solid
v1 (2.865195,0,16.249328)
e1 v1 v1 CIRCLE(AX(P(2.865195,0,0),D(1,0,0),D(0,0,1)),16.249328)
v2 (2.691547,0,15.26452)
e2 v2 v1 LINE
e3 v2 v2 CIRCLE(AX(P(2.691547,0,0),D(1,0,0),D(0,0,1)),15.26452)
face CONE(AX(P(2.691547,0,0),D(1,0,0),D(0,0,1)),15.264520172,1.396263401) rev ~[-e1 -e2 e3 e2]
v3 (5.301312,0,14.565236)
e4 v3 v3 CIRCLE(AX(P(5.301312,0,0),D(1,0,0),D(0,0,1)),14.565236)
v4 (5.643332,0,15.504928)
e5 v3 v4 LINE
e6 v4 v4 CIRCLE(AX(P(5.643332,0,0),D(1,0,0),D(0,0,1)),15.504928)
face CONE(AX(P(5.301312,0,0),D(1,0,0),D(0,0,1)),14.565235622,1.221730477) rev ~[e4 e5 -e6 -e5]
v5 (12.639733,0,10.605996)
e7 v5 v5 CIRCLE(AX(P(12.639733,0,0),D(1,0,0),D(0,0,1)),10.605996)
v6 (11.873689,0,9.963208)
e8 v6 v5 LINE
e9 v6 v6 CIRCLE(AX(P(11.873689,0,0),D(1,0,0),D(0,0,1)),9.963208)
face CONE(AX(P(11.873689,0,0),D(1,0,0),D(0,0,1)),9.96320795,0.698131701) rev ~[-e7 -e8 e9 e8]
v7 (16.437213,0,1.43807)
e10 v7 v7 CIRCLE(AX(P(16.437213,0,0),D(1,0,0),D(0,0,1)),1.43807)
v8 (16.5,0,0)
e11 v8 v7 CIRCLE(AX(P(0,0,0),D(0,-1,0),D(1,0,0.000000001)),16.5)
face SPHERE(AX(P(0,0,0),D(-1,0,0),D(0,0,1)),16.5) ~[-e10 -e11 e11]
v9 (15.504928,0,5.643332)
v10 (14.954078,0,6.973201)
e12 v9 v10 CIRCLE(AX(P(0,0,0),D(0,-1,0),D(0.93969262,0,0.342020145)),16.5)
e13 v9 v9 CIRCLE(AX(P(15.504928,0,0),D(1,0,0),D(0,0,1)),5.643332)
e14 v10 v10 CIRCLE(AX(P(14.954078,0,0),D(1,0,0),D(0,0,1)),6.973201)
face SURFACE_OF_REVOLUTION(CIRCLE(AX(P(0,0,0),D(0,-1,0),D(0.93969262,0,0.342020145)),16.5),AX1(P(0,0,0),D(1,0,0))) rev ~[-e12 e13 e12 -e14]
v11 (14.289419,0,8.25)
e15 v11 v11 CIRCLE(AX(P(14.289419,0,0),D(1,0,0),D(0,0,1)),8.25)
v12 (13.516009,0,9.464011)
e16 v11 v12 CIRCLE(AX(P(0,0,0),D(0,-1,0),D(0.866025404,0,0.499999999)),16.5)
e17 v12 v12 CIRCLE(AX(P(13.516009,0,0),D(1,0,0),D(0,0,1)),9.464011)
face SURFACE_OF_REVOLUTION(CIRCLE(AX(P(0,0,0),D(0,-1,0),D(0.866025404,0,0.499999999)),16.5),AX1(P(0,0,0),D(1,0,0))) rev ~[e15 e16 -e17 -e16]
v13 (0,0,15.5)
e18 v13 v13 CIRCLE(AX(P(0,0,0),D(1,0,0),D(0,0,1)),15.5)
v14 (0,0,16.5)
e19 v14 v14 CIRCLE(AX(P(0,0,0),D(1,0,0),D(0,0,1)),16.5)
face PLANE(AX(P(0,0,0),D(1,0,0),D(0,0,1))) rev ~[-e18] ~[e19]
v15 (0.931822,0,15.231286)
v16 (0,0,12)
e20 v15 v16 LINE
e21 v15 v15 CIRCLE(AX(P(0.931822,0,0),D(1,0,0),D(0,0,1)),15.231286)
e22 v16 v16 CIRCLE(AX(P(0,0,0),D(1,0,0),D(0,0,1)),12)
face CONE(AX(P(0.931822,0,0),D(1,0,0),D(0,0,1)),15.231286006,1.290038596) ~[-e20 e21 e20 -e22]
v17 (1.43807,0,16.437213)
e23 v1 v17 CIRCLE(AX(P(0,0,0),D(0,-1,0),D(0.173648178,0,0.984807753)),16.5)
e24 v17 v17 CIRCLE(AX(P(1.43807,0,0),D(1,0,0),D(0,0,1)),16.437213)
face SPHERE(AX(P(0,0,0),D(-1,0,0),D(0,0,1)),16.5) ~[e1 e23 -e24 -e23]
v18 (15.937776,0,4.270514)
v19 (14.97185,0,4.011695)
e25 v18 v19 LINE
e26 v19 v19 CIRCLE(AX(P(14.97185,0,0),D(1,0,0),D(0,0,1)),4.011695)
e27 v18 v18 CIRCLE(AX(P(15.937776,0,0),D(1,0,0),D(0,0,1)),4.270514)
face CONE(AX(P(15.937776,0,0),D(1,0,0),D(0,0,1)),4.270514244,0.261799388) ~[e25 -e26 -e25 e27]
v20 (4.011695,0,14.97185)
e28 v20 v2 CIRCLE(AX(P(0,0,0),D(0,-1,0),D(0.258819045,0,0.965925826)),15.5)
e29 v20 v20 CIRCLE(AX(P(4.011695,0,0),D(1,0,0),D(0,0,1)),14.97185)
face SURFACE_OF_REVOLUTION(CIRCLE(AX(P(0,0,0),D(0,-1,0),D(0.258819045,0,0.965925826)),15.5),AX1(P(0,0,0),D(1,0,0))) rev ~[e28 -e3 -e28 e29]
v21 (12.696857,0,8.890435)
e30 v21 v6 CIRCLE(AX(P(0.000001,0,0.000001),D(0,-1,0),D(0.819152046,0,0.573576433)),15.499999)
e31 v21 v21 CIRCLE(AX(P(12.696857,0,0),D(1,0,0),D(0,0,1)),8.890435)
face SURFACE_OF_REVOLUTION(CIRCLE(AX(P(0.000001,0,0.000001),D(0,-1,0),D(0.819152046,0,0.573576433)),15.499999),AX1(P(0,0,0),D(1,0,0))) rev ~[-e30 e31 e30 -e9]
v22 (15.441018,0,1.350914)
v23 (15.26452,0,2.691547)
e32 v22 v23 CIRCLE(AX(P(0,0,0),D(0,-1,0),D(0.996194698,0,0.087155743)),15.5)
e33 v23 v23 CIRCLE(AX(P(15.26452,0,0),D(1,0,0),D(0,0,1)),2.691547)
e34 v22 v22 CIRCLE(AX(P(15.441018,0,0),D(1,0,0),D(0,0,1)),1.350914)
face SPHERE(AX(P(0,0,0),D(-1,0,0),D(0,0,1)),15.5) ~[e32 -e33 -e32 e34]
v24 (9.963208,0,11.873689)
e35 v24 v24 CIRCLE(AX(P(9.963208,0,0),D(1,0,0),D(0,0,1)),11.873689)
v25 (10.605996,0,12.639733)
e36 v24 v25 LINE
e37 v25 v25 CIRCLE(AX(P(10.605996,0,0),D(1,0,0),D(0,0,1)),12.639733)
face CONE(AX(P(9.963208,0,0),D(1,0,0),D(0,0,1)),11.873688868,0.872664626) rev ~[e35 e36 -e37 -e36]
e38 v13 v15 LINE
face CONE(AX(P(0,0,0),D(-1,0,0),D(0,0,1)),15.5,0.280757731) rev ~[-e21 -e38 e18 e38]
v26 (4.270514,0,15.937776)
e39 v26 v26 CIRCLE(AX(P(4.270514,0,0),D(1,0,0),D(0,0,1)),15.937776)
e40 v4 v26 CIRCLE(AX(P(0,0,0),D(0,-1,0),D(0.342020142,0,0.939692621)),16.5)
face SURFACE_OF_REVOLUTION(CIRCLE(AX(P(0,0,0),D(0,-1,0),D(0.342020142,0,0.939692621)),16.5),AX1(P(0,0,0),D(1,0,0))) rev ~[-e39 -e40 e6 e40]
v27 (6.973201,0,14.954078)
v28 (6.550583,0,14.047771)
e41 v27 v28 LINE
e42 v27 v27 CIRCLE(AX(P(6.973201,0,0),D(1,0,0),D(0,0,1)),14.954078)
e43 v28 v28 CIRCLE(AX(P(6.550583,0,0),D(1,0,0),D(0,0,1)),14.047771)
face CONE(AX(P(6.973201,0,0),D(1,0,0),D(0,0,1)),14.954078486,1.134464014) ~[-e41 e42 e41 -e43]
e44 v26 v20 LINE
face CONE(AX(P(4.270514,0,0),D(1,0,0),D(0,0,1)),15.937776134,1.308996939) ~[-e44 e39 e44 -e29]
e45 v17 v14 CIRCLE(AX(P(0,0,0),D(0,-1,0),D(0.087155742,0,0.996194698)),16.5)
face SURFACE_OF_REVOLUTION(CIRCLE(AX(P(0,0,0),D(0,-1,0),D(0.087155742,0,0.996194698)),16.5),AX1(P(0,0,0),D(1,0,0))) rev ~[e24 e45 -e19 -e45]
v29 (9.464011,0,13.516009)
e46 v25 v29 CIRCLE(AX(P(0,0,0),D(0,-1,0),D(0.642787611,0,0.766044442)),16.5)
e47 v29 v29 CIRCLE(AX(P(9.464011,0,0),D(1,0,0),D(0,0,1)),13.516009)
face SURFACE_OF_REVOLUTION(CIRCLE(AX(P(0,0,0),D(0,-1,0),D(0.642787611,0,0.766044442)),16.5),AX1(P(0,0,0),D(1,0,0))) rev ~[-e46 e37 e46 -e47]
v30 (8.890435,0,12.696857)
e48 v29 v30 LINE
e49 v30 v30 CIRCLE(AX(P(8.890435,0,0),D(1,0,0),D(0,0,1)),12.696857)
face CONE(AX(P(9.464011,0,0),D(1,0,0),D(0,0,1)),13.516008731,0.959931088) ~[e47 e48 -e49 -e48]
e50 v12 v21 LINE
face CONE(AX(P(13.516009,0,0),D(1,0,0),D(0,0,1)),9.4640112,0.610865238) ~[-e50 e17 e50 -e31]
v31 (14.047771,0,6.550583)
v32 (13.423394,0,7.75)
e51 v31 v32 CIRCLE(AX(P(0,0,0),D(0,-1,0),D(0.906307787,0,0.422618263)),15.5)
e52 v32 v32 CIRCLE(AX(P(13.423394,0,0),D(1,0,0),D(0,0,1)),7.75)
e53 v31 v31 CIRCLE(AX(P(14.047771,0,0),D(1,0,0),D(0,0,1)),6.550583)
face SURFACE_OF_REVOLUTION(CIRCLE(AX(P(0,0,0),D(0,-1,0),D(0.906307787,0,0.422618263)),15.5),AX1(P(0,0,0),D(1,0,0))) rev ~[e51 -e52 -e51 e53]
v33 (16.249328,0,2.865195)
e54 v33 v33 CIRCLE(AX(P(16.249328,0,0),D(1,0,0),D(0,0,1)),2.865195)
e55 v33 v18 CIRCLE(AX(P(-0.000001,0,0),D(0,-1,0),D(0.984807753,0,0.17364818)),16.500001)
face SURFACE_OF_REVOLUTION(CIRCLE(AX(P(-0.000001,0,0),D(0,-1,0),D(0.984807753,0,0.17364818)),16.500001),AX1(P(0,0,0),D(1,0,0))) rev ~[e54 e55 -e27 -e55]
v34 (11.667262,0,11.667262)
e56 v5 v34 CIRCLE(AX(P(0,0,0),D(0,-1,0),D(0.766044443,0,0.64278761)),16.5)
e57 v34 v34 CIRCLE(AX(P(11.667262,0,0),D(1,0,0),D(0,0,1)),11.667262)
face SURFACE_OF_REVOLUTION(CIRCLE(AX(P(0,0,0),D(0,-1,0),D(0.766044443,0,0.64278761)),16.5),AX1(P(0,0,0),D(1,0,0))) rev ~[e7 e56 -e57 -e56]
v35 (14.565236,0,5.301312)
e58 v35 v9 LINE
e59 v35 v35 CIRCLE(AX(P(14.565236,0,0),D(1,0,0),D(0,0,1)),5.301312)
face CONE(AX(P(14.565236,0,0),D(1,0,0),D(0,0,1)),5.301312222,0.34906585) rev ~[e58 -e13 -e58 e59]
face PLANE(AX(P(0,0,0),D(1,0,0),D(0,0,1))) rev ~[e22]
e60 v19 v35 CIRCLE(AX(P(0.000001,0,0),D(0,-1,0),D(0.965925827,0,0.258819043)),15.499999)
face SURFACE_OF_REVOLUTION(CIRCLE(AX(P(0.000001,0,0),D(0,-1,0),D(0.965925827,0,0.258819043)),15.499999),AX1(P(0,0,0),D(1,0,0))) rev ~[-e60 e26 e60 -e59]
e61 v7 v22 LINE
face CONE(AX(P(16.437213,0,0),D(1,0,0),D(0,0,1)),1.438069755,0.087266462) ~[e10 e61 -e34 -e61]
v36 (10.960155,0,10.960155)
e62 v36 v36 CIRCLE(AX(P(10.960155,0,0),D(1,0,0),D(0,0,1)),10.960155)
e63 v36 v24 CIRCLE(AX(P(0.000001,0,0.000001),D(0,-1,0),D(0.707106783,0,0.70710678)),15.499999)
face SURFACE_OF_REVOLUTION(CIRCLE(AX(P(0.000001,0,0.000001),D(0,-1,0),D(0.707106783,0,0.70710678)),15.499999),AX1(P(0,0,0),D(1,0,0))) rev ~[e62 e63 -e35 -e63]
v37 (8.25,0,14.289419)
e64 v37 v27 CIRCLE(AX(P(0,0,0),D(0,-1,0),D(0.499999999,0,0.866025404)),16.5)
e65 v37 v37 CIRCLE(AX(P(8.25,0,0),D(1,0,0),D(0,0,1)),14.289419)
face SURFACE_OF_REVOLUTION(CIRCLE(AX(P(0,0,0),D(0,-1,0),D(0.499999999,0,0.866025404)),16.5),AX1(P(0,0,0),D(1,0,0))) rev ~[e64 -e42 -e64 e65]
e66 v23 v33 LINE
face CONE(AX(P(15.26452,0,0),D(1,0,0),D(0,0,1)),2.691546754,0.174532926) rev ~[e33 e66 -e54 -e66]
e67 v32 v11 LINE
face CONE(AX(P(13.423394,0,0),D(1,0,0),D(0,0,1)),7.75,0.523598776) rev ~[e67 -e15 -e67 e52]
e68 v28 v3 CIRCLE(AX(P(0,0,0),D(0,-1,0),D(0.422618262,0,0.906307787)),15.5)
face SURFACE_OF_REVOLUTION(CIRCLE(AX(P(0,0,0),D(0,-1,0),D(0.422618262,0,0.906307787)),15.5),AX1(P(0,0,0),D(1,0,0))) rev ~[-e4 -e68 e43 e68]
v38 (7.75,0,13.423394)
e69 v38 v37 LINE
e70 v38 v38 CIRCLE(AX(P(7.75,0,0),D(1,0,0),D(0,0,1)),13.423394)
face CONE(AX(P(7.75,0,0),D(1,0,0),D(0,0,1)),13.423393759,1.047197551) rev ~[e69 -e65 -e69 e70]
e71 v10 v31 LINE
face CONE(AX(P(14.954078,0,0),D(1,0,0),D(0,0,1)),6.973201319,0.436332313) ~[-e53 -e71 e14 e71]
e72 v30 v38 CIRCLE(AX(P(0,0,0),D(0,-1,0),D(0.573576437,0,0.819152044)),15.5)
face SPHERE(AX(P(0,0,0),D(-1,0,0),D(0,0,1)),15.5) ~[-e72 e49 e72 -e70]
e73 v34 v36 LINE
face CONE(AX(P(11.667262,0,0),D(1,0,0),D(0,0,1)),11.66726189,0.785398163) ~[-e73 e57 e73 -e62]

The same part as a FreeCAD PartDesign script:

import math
import FreeCAD as App
import Part
import Sketcher

V = App.Vector
Q = App.Units.Quantity

doc = App.newDocument("Part")
body = doc.addObject("PartDesign::Body", "Body")

sketch1 = doc.addObject("Sketcher::SketchObject", "Sketch")
body.addObject(sketch1)
sketch1.AttachmentSupport = (doc.XZ_Plane, [""])
sketch1.MapMode = "FlatFace"
sketch1.addGeometry(Part.LineSegment(V(16.5, 0, 0), V(0, 0, 0)), False)
sketch1.addGeometry(Part.LineSegment(V(0, 0, 0), V(0, 12, 0)), False)
sketch1.addGeometry(Part.LineSegment(V(0, 12, 0), V(0.9, 15.2, 0)), False)
sketch1.addGeometry(Part.LineSegment(V(0.9, 15.2, 0), V(0, 15.5, 0)), False)
sketch1.addGeometry(Part.LineSegment(V(0, 15.5, 0), V(0, 16.5, 0)), False)
sketch1.addGeometry(Part.ArcOfCircle(Part.Circle(V(0, 0, 0), V(0, 0, 1), 16.5), math.radians(85), math.radians(90)), False)
sketch1.addGeometry(Part.ArcOfCircle(Part.Circle(V(0, 0, 0), V(0, 0, 1), 16.5), math.radians(80), math.radians(85)), False)
sketch1.addGeometry(Part.LineSegment(V(2.9, 16.2, 0), V(2.7, 15.3, 0)), False)
sketch1.addGeometry(Part.ArcOfCircle(Part.Circle(V(0, 0, 0), V(0, 0, 1), 15.5), math.radians(75), math.radians(80)), False)
sketch1.addGeometry(Part.LineSegment(V(4, 15, 0), V(4.3, 15.9, 0)), False)
sketch1.addGeometry(Part.ArcOfCircle(Part.Circle(V(0, 0, 0), V(0, 0, 1), 16.5), math.radians(70), math.radians(75)), False)
sketch1.addGeometry(Part.LineSegment(V(5.6, 15.5, 0), V(5.3, 14.6, 0)), False)
sketch1.addGeometry(Part.ArcOfCircle(Part.Circle(V(0, 0, 0), V(0, 0, 1), 15.5), math.radians(65), math.radians(70)), False)
sketch1.addGeometry(Part.LineSegment(V(6.6, 14, 0), V(7, 15, 0)), False)
sketch1.addGeometry(Part.ArcOfCircle(Part.Circle(V(0, 0, 0), V(0, 0, 1), 16.5), math.radians(60), math.radians(65)), False)
sketch1.addGeometry(Part.LineSegment(V(8.2, 14.3, 0), V(7.8, 13.4, 0)), False)
sketch1.addGeometry(Part.ArcOfCircle(Part.Circle(V(0, 0, 0), V(0, 0, 1), 15.5), math.radians(55), math.radians(60)), False)
sketch1.addGeometry(Part.LineSegment(V(8.9, 12.7, 0), V(9.5, 13.5, 0)), False)
sketch1.addGeometry(Part.ArcOfCircle(Part.Circle(V(0, 0, 0), V(0, 0, 1), 16.5), math.radians(50), math.radians(55)), False)
sketch1.addGeometry(Part.LineSegment(V(10.6, 12.6, 0), V(10, 11.9, 0)), False)
sketch1.addGeometry(Part.ArcOfCircle(Part.Circle(V(0, 0, 0), V(0, 0, 1), 15.5), math.radians(45), math.radians(50)), False)
sketch1.addGeometry(Part.LineSegment(V(11, 11, 0), V(11.7, 11.7, 0)), False)
sketch1.addGeometry(Part.ArcOfCircle(Part.Circle(V(0, 0, 0), V(0, 0, 1), 16.5), math.radians(40), math.radians(45)), False)
sketch1.addGeometry(Part.LineSegment(V(12.6, 10.6, 0), V(11.9, 10, 0)), False)
sketch1.addGeometry(Part.ArcOfCircle(Part.Circle(V(0, 0, 0), V(0, 0, 1), 15.5), math.radians(35), math.radians(40)), False)
sketch1.addGeometry(Part.LineSegment(V(12.7, 8.9, 0), V(13.5, 9.5, 0)), False)
sketch1.addGeometry(Part.ArcOfCircle(Part.Circle(V(0, 0, 0), V(0, 0, 1), 16.5), math.radians(30), math.radians(35)), False)
sketch1.addGeometry(Part.LineSegment(V(14.3, 8.2, 0), V(13.4, 7.8, 0)), False)
sketch1.addGeometry(Part.ArcOfCircle(Part.Circle(V(0, 0, 0), V(0, 0, 1), 15.5), math.radians(25), math.radians(30)), False)
sketch1.addGeometry(Part.LineSegment(V(14, 6.6, 0), V(15, 7, 0)), False)
sketch1.addGeometry(Part.ArcOfCircle(Part.Circle(V(0, 0, 0), V(0, 0, 1), 16.5), math.radians(20), math.radians(25)), False)
sketch1.addGeometry(Part.LineSegment(V(15.5, 5.6, 0), V(14.6, 5.3, 0)), False)
sketch1.addGeometry(Part.ArcOfCircle(Part.Circle(V(0, 0, 0), V(0, 0, 1), 15.5), math.radians(15), math.radians(20)), False)
sketch1.addGeometry(Part.LineSegment(V(15, 4, 0), V(15.9, 4.3, 0)), False)
sketch1.addGeometry(Part.ArcOfCircle(Part.Circle(V(0, 0, 0), V(0, 0, 1), 16.5), math.radians(10), math.radians(15)), False)
sketch1.addGeometry(Part.LineSegment(V(16.2, 2.9, 0), V(15.3, 2.7, 0)), False)
sketch1.addGeometry(Part.ArcOfCircle(Part.Circle(V(0, 0, 0), V(0, 0, 1), 15.5), math.radians(5), math.radians(10)), False)
sketch1.addGeometry(Part.LineSegment(V(15.4, 1.4, 0), V(16.4, 1.4, 0)), False)
sketch1.addGeometry(Part.ArcOfCircle(Part.Circle(V(0, 0, 0), V(0, 0, 1), 16.5), math.radians(0), math.radians(5)), False)
sketch1.addConstraint(Sketcher.Constraint("Coincident", 0, 2, 1, 1))
sketch1.addConstraint(Sketcher.Constraint("Coincident", 1, 2, 2, 1))
sketch1.addConstraint(Sketcher.Constraint("Coincident", 2, 2, 3, 1))
sketch1.addConstraint(Sketcher.Constraint("Coincident", 3, 2, 4, 1))
sketch1.addConstraint(Sketcher.Constraint("Coincident", 4, 2, 5, 2))
sketch1.addConstraint(Sketcher.Constraint("Tangent", 5, 1, 6, 2))
sketch1.addConstraint(Sketcher.Constraint("Coincident", 6, 1, 7, 1))
sketch1.addConstraint(Sketcher.Constraint("Coincident", 7, 2, 8, 2))
sketch1.addConstraint(Sketcher.Constraint("Coincident", 8, 1, 9, 1))
sketch1.addConstraint(Sketcher.Constraint("Coincident", 9, 2, 10, 2))
sketch1.addConstraint(Sketcher.Constraint("Coincident", 10, 1, 11, 1))
sketch1.addConstraint(Sketcher.Constraint("Coincident", 11, 2, 12, 2))
sketch1.addConstraint(Sketcher.Constraint("Coincident", 12, 1, 13, 1))
sketch1.addConstraint(Sketcher.Constraint("Coincident", 13, 2, 14, 2))
sketch1.addConstraint(Sketcher.Constraint("Coincident", 14, 1, 15, 1))
sketch1.addConstraint(Sketcher.Constraint("Coincident", 15, 2, 16, 2))
sketch1.addConstraint(Sketcher.Constraint("Coincident", 16, 1, 17, 1))
sketch1.addConstraint(Sketcher.Constraint("Coincident", 17, 2, 18, 2))
sketch1.addConstraint(Sketcher.Constraint("Coincident", 18, 1, 19, 1))
sketch1.addConstraint(Sketcher.Constraint("Coincident", 19, 2, 20, 2))
sketch1.addConstraint(Sketcher.Constraint("Coincident", 20, 1, 21, 1))
sketch1.addConstraint(Sketcher.Constraint("Coincident", 21, 2, 22, 2))
sketch1.addConstraint(Sketcher.Constraint("Coincident", 22, 1, 23, 1))
sketch1.addConstraint(Sketcher.Constraint("Coincident", 23, 2, 24, 2))
sketch1.addConstraint(Sketcher.Constraint("Coincident", 24, 1, 25, 1))
sketch1.addConstraint(Sketcher.Constraint("Coincident", 25, 2, 26, 2))
sketch1.addConstraint(Sketcher.Constraint("Coincident", 26, 1, 27, 1))
sketch1.addConstraint(Sketcher.Constraint("Coincident", 27, 2, 28, 2))
sketch1.addConstraint(Sketcher.Constraint("Coincident", 28, 1, 29, 1))
sketch1.addConstraint(Sketcher.Constraint("Coincident", 29, 2, 30, 2))
sketch1.addConstraint(Sketcher.Constraint("Coincident", 30, 1, 31, 1))
sketch1.addConstraint(Sketcher.Constraint("Coincident", 31, 2, 32, 2))
sketch1.addConstraint(Sketcher.Constraint("Coincident", 32, 1, 33, 1))
sketch1.addConstraint(Sketcher.Constraint("Coincident", 33, 2, 34, 2))
sketch1.addConstraint(Sketcher.Constraint("Coincident", 34, 1, 35, 1))
sketch1.addConstraint(Sketcher.Constraint("Coincident", 35, 2, 36, 2))
sketch1.addConstraint(Sketcher.Constraint("Coincident", 36, 1, 37, 1))
sketch1.addConstraint(Sketcher.Constraint("Coincident", 37, 2, 38, 2))
sketch1.addConstraint(Sketcher.Constraint("Coincident", 38, 1, 0, 1))
sketch1.addConstraint(Sketcher.Constraint("Horizontal", 0))
sketch1.addConstraint(Sketcher.Constraint("Vertical", 1))
sketch1.addConstraint(Sketcher.Constraint("Vertical", 4))
sketch1.addConstraint(Sketcher.Constraint("Coincident", 5, 3, -1, 1))
sketch1.addConstraint(Sketcher.Constraint("Coincident", 8, 3, -1, 1))
sketch1.addConstraint(Sketcher.Constraint("Coincident", 10, 3, -1, 1))
sketch1.addConstraint(Sketcher.Constraint("Coincident", 12, 3, -1, 1))
sketch1.addConstraint(Sketcher.Constraint("Coincident", 14, 3, -1, 1))
sketch1.addConstraint(Sketcher.Constraint("Coincident", 16, 3, -1, 1))
sketch1.addConstraint(Sketcher.Constraint("Coincident", 18, 3, -1, 1))
sketch1.addConstraint(Sketcher.Constraint("Coincident", 20, 3, -1, 1))
sketch1.addConstraint(Sketcher.Constraint("Coincident", 22, 3, -1, 1))
sketch1.addConstraint(Sketcher.Constraint("Coincident", 24, 3, -1, 1))
sketch1.addConstraint(Sketcher.Constraint("Coincident", 26, 3, -1, 1))
sketch1.addConstraint(Sketcher.Constraint("Coincident", 28, 3, -1, 1))
sketch1.addConstraint(Sketcher.Constraint("Coincident", 30, 3, -1, 1))
sketch1.addConstraint(Sketcher.Constraint("Coincident", 32, 3, -1, 1))
sketch1.addConstraint(Sketcher.Constraint("Coincident", 34, 3, -1, 1))
sketch1.addConstraint(Sketcher.Constraint("Coincident", 36, 3, -1, 1))
sketch1.addConstraint(Sketcher.Constraint("Coincident", 38, 3, -1, 1))
sketch1.addConstraint(Sketcher.Constraint("Coincident", 0, 2, -1, 1))
sketch1.addConstraint(Sketcher.Constraint("Equal", 5, 6))
sketch1.addConstraint(Sketcher.Constraint("Equal", 6, 10))
sketch1.addConstraint(Sketcher.Constraint("Equal", 8, 12))
sketch1.addConstraint(Sketcher.Constraint("Equal", 10, 14))
sketch1.addConstraint(Sketcher.Constraint("Equal", 12, 16))
sketch1.addConstraint(Sketcher.Constraint("Equal", 14, 18))
sketch1.addConstraint(Sketcher.Constraint("Equal", 16, 20))
sketch1.addConstraint(Sketcher.Constraint("Equal", 18, 22))
sketch1.addConstraint(Sketcher.Constraint("Equal", 20, 24))
sketch1.addConstraint(Sketcher.Constraint("Equal", 22, 26))
sketch1.addConstraint(Sketcher.Constraint("Equal", 24, 28))
sketch1.addConstraint(Sketcher.Constraint("Equal", 26, 30))
sketch1.addConstraint(Sketcher.Constraint("Equal", 28, 32))
sketch1.addConstraint(Sketcher.Constraint("Equal", 30, 34))
sketch1.addConstraint(Sketcher.Constraint("Equal", 32, 36))
sketch1.addConstraint(Sketcher.Constraint("Equal", 34, 38))
sketch1.addConstraint(Sketcher.Constraint("PointOnObject", 3, 2, -2))
sketch1.addConstraint(Sketcher.Constraint("Perpendicular", 2, 3))
sketch1.addConstraint(Sketcher.Constraint("Radius", 5, Q("16.5 mm")))
sketch1.addConstraint(Sketcher.Constraint("Radius", 8, Q("15.5 mm")))
sketch1.addConstraint(Sketcher.Constraint("DistanceY", 1, 1, 1, 2, Q("12 mm")))
sketch1.addConstraint(Sketcher.Constraint("DistanceY", 4, 1, 4, 2, Q("1 mm")))
sketch1.addConstraint(Sketcher.Constraint("Angle", 7, Q("-100 deg")))
sketch1.addConstraint(Sketcher.Constraint("Angle", 9, Q("75 deg")))
sketch1.addConstraint(Sketcher.Constraint("Angle", 11, Q("-110 deg")))
sketch1.addConstraint(Sketcher.Constraint("Angle", 13, Q("65 deg")))
sketch1.addConstraint(Sketcher.Constraint("Angle", 15, Q("-120 deg")))
sketch1.addConstraint(Sketcher.Constraint("Angle", 17, Q("55 deg")))
sketch1.addConstraint(Sketcher.Constraint("Angle", 19, Q("-130 deg")))
sketch1.addConstraint(Sketcher.Constraint("Angle", 21, Q("45 deg")))
sketch1.addConstraint(Sketcher.Constraint("Angle", 23, Q("-140 deg")))
sketch1.addConstraint(Sketcher.Constraint("Angle", 25, Q("35 deg")))
sketch1.addConstraint(Sketcher.Constraint("Angle", 27, Q("-150 deg")))
sketch1.addConstraint(Sketcher.Constraint("Angle", 29, Q("25 deg")))
sketch1.addConstraint(Sketcher.Constraint("Angle", 31, Q("-160 deg")))
sketch1.addConstraint(Sketcher.Constraint("Angle", 33, Q("15 deg")))
sketch1.addConstraint(Sketcher.Constraint("Angle", 35, Q("-170 deg")))
sketch1.addConstraint(Sketcher.Constraint("Angle", 37, Q("5 deg")))
sketch1.addConstraint(Sketcher.Constraint("DistanceX", -1, 1, 14, 1, Q("8.25 mm")))
sketch1.addConstraint(Sketcher.Constraint("DistanceY", -1, 1, 26, 1, Q("8.25 mm")))
sketch1.addConstraint(Sketcher.Constraint("DistanceX", -1, 1, 13, 2, Q("6.973201 mm")))
sketch1.addConstraint(Sketcher.Constraint("DistanceY", -1, 1, 29, 2, Q("6.973201 mm")))
sketch1.addConstraint(Sketcher.Constraint("DistanceX", 6, 1, 8, 1, Q("1.1465 mm")))
sketch1.addConstraint(Sketcher.Constraint("DistanceY", 10, 1, 6, 1, Q("0.7444 mm")))
sketch1.addConstraint(Sketcher.Constraint("DistanceY", 20, 1, 16, 1, Q("1.736702 mm")))
sketch1.addConstraint(Sketcher.Constraint("DistanceX", 16, 1, 22, 1, Q("3.749299 mm")))
sketch1.addConstraint(Sketcher.Constraint("DistanceX", 20, 1, 24, 1, Q("1.736702 mm")))
sketch1.addConstraint(Sketcher.Constraint("DistanceY", 34, 1, 32, 1, Q("1.1465 mm")))
sketch1.addConstraint(Sketcher.Constraint("DistanceX", 30, 1, 34, 1, Q("0.7444 mm")))
sketch1.addConstraint(Sketcher.Constraint("DistanceY", 36, 1, 33, 2, Q("2.9196 mm")))
sketch1.addConstraint(Sketcher.Constraint("DistanceY", 36, 1, 31, 2, Q("3.950398 mm")))
sketch1.addConstraint(Sketcher.Constraint("Distance", 2, Q("3.36296 mm")))
sketch1.addConstraint(Sketcher.Constraint("DistanceX", -1, 1, 5, 1, Q("1.43807 mm")))
sketch1.addConstraint(Sketcher.Constraint("DistanceY", -1, 1, 7, 2, Q("15.26452 mm")))
sketch1.addConstraint(Sketcher.Constraint("DistanceX", -1, 1, 17, 2, Q("9.464011 mm")))
sketch1.addConstraint(Sketcher.Constraint("DistanceY", -1, 1, 19, 2, Q("11.873689 mm")))
revolution = doc.addObject("PartDesign::Revolution", "Revolution")
body.addObject(revolution)
revolution.Profile = sketch1
revolution.ReferenceAxis = (sketch1, ["H_Axis"])
revolution.Angle = 360

doc.recompute()
